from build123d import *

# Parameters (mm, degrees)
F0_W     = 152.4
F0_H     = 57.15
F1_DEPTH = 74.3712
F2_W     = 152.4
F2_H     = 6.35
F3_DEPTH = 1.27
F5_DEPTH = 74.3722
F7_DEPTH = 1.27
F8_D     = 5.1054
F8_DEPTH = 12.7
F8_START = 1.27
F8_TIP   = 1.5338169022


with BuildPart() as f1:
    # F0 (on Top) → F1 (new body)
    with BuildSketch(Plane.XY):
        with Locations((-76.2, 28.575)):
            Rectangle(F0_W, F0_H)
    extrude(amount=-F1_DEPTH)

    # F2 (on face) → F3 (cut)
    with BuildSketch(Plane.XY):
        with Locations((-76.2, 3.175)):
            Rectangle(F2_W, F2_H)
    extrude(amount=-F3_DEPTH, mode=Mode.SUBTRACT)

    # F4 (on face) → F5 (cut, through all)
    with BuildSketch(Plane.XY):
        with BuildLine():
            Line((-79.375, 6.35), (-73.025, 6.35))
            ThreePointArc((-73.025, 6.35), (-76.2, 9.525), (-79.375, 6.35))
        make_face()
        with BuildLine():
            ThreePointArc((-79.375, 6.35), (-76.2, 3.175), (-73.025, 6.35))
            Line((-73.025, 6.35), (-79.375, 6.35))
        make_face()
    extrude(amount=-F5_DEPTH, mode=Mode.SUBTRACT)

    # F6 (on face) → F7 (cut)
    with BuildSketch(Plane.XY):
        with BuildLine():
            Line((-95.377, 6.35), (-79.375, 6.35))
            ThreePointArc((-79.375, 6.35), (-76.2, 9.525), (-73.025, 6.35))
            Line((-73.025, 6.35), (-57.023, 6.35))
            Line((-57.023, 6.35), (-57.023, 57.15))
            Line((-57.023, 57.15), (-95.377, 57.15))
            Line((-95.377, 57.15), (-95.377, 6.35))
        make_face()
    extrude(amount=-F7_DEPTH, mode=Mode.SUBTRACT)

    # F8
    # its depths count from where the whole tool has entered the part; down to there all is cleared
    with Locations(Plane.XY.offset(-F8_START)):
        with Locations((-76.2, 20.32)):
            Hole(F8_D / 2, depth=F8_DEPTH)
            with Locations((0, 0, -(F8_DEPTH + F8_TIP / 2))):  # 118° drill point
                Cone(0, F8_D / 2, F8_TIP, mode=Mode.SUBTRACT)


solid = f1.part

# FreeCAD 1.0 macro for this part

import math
import FreeCAD as App
import Part
import Sketcher
from FreeCAD import Vector
Q = App.Units.Quantity

doc = App.newDocument("Part")
body = doc.addObject("PartDesign::Body", "Body")

sketch1 = body.newObject("Sketcher::SketchObject", "Sketch")
sketch1.AttachmentSupport = (doc.getObject("XY_Plane"), [""])
sketch1.MapMode = "FlatFace"
sketch1.addGeometry([
    Part.LineSegment(Vector(-152, 57, 0), Vector(-152, 0, 0)),
    Part.LineSegment(Vector(-152, 0, 0), Vector(0, 0, 0)),
    Part.LineSegment(Vector(0, 0, 0), Vector(0, 57, 0)),
    Part.LineSegment(Vector(0, 57, 0), Vector(-152, 57, 0)),
], False)
sketch1.addConstraint([
    Sketcher.Constraint("Coincident", 0, 2, 1, 1),
    Sketcher.Constraint("Coincident", 1, 2, 2, 1),
    Sketcher.Constraint("Coincident", 2, 2, 3, 1),
    Sketcher.Constraint("Coincident", 3, 2, 0, 1),
    Sketcher.Constraint("Vertical", 0),
    Sketcher.Constraint("Horizontal", 1),
    Sketcher.Constraint("Vertical", 2),
    Sketcher.Constraint("Horizontal", 3),
    Sketcher.Constraint("Coincident", 1, 2, -1, 1),
    Sketcher.Constraint("DistanceX", 1, 1, 1, 2, Q("6 in")),
    Sketcher.Constraint("DistanceY", 0, 2, 0, 1, Q("2.25 in")),
])
pad1 = body.newObject("PartDesign::Pad", "Pad")
pad1.Profile = sketch1
pad1.Length = Q("2.928 in")
pad1.Reversed = True

sketch2 = body.newObject("Sketcher::SketchObject", "Sketch001")
sketch2.AttachmentSupport = (doc.getObject("XY_Plane"), [""])
sketch2.MapMode = "FlatFace"
sketch2.addGeometry([
    Part.LineSegment(Vector(-152, 6, 0), Vector(-152, 0, 0)),
    Part.LineSegment(Vector(-152, 0, 0), Vector(0, 0, 0)),
    Part.LineSegment(Vector(0, 0, 0), Vector(0, 6, 0)),
    Part.LineSegment(Vector(0, 6, 0), Vector(-152, 6, 0)),
], False)
sketch2.addConstraint([
    Sketcher.Constraint("Coincident", 0, 2, 1, 1),
    Sketcher.Constraint("Coincident", 1, 2, 2, 1),
    Sketcher.Constraint("Coincident", 2, 2, 3, 1),
    Sketcher.Constraint("Coincident", 3, 2, 0, 1),
    Sketcher.Constraint("Vertical", 0),
    Sketcher.Constraint("Horizontal", 1),
    Sketcher.Constraint("Vertical", 2),
    Sketcher.Constraint("Horizontal", 3),
    Sketcher.Constraint("Coincident", 1, 2, -1, 1),
    Sketcher.Constraint("DistanceX", 1, 1, 1, 2, Q("6 in")),
    Sketcher.Constraint("DistanceY", 0, 2, 0, 1, Q("0.25 in")),
])
pocket1 = body.newObject("PartDesign::Pocket", "Pocket")
pocket1.Profile = sketch2
pocket1.Length = Q("0.05 in")

sketch3 = body.newObject("Sketcher::SketchObject", "Sketch002")
sketch3.AttachmentSupport = (doc.getObject("XY_Plane"), [""])
sketch3.MapMode = "FlatFace"
sketch3.addGeometry(Part.Circle(Vector(-76.2, 6.3, 0), Vector(0, 0, 1), 3.2), False)
sketch3.addConstraint([
    Sketcher.Constraint("Diameter", 0, Q("0.25 in")),
    Sketcher.Constraint("DistanceX", 0, 3, -1, 1, Q("3 in")),
    Sketcher.Constraint("DistanceY", -1, 1, 0, 3, Q("0.25 in")),
])
pocket2 = body.newObject("PartDesign::Pocket", "Pocket001")
pocket2.Profile = sketch3
pocket2.Type = "ThroughAll"

sketch4 = body.newObject("Sketcher::SketchObject", "Sketch003")
sketch4.AttachmentSupport = (doc.getObject("XY_Plane"), [""])
sketch4.MapMode = "FlatFace"
sketch4.addGeometry([
    Part.LineSegment(Vector(-95.4, 6.3, 0), Vector(-79.4, 6.3, 0)),
    Part.ArcOfCircle(Part.Circle(Vector(-76.2, 6.3, 0), Vector(0, 0, 1), 3.2), math.radians(0), math.radians(180)),
    Part.LineSegment(Vector(-73, 6.3, 0), Vector(-57, 6.3, 0)),
    Part.LineSegment(Vector(-57, 6.3, 0), Vector(-57, 57.1, 0)),
    Part.LineSegment(Vector(-57, 57.1, 0), Vector(-95.4, 57.1, 0)),
    Part.LineSegment(Vector(-95.4, 57.1, 0), Vector(-95.4, 6.3, 0)),
], False)
sketch4.addConstraint([
    Sketcher.Constraint("Coincident", 0, 2, 1, 2),
    Sketcher.Constraint("Coincident", 1, 1, 2, 1),
    Sketcher.Constraint("Coincident", 2, 2, 3, 1),
    Sketcher.Constraint("Coincident", 3, 2, 4, 1),
    Sketcher.Constraint("Coincident", 4, 2, 5, 1),
    Sketcher.Constraint("Coincident", 5, 2, 0, 1),
    Sketcher.Constraint("Horizontal", 0),
    Sketcher.Constraint("Horizontal", 2),
    Sketcher.Constraint("Vertical", 3),
    Sketcher.Constraint("Horizontal", 4),
    Sketcher.Constraint("Vertical", 5),
    Sketcher.Constraint("Horizontal", 1, 3, 0, 2),
    Sketcher.Constraint("Horizontal", 0, 2, 1, 1),
    Sketcher.Constraint("Equal", 0, 2),
    Sketcher.Constraint("DistanceY", 3, 1, 3, 2, Q("2 in")),
    Sketcher.Constraint("DistanceX", 1, 3, -1, 1, Q("3 in")),
    Sketcher.Constraint("Radius", 1, Q("0.125 in")),
    Sketcher.Constraint("DistanceX", 0, 1, 0, 2, Q("0.63 in")),
    Sketcher.Constraint("DistanceY", -1, 1, 1, 3, Q("0.25 in")),
])
pocket3 = body.newObject("PartDesign::Pocket", "Pocket002")
pocket3.Profile = sketch4
pocket3.Length = Q("0.05 in")

sketch5 = body.newObject("Sketcher::SketchObject", "Sketch004")
sketch5.AttachmentSupport = (doc.getObject("XY_Plane"), [""])
sketch5.MapMode = "FlatFace"
sketch5.AttachmentOffset = App.Placement(Vector(0, 0, -0.05 * 25.4), App.Rotation())
sketch5.addGeometry(Part.Circle(Vector(-76.2, 20.3, 0), Vector(0, 0, 1), 2.6), False)
sketch5.addConstraint([
    Sketcher.Constraint("Diameter", 0, Q("0.201 in")),
    Sketcher.Constraint("DistanceX", 0, 3, -1, 1, Q("3 in")),
    Sketcher.Constraint("DistanceY", -1, 1, 0, 3, Q("0.8 in")),
])
doc.recompute()
hole = body.newObject("PartDesign::Hole", "Hole")
hole.Profile = sketch5
hole.ThreadType = "None"
hole.Diameter = Q("0.201 in")
hole.DepthType = "Dimension"
hole.Depth = Q("0.5 in")
hole.DrillPoint = "Angled"
hole.DrillPointAngle = 118

doc.recompute()
